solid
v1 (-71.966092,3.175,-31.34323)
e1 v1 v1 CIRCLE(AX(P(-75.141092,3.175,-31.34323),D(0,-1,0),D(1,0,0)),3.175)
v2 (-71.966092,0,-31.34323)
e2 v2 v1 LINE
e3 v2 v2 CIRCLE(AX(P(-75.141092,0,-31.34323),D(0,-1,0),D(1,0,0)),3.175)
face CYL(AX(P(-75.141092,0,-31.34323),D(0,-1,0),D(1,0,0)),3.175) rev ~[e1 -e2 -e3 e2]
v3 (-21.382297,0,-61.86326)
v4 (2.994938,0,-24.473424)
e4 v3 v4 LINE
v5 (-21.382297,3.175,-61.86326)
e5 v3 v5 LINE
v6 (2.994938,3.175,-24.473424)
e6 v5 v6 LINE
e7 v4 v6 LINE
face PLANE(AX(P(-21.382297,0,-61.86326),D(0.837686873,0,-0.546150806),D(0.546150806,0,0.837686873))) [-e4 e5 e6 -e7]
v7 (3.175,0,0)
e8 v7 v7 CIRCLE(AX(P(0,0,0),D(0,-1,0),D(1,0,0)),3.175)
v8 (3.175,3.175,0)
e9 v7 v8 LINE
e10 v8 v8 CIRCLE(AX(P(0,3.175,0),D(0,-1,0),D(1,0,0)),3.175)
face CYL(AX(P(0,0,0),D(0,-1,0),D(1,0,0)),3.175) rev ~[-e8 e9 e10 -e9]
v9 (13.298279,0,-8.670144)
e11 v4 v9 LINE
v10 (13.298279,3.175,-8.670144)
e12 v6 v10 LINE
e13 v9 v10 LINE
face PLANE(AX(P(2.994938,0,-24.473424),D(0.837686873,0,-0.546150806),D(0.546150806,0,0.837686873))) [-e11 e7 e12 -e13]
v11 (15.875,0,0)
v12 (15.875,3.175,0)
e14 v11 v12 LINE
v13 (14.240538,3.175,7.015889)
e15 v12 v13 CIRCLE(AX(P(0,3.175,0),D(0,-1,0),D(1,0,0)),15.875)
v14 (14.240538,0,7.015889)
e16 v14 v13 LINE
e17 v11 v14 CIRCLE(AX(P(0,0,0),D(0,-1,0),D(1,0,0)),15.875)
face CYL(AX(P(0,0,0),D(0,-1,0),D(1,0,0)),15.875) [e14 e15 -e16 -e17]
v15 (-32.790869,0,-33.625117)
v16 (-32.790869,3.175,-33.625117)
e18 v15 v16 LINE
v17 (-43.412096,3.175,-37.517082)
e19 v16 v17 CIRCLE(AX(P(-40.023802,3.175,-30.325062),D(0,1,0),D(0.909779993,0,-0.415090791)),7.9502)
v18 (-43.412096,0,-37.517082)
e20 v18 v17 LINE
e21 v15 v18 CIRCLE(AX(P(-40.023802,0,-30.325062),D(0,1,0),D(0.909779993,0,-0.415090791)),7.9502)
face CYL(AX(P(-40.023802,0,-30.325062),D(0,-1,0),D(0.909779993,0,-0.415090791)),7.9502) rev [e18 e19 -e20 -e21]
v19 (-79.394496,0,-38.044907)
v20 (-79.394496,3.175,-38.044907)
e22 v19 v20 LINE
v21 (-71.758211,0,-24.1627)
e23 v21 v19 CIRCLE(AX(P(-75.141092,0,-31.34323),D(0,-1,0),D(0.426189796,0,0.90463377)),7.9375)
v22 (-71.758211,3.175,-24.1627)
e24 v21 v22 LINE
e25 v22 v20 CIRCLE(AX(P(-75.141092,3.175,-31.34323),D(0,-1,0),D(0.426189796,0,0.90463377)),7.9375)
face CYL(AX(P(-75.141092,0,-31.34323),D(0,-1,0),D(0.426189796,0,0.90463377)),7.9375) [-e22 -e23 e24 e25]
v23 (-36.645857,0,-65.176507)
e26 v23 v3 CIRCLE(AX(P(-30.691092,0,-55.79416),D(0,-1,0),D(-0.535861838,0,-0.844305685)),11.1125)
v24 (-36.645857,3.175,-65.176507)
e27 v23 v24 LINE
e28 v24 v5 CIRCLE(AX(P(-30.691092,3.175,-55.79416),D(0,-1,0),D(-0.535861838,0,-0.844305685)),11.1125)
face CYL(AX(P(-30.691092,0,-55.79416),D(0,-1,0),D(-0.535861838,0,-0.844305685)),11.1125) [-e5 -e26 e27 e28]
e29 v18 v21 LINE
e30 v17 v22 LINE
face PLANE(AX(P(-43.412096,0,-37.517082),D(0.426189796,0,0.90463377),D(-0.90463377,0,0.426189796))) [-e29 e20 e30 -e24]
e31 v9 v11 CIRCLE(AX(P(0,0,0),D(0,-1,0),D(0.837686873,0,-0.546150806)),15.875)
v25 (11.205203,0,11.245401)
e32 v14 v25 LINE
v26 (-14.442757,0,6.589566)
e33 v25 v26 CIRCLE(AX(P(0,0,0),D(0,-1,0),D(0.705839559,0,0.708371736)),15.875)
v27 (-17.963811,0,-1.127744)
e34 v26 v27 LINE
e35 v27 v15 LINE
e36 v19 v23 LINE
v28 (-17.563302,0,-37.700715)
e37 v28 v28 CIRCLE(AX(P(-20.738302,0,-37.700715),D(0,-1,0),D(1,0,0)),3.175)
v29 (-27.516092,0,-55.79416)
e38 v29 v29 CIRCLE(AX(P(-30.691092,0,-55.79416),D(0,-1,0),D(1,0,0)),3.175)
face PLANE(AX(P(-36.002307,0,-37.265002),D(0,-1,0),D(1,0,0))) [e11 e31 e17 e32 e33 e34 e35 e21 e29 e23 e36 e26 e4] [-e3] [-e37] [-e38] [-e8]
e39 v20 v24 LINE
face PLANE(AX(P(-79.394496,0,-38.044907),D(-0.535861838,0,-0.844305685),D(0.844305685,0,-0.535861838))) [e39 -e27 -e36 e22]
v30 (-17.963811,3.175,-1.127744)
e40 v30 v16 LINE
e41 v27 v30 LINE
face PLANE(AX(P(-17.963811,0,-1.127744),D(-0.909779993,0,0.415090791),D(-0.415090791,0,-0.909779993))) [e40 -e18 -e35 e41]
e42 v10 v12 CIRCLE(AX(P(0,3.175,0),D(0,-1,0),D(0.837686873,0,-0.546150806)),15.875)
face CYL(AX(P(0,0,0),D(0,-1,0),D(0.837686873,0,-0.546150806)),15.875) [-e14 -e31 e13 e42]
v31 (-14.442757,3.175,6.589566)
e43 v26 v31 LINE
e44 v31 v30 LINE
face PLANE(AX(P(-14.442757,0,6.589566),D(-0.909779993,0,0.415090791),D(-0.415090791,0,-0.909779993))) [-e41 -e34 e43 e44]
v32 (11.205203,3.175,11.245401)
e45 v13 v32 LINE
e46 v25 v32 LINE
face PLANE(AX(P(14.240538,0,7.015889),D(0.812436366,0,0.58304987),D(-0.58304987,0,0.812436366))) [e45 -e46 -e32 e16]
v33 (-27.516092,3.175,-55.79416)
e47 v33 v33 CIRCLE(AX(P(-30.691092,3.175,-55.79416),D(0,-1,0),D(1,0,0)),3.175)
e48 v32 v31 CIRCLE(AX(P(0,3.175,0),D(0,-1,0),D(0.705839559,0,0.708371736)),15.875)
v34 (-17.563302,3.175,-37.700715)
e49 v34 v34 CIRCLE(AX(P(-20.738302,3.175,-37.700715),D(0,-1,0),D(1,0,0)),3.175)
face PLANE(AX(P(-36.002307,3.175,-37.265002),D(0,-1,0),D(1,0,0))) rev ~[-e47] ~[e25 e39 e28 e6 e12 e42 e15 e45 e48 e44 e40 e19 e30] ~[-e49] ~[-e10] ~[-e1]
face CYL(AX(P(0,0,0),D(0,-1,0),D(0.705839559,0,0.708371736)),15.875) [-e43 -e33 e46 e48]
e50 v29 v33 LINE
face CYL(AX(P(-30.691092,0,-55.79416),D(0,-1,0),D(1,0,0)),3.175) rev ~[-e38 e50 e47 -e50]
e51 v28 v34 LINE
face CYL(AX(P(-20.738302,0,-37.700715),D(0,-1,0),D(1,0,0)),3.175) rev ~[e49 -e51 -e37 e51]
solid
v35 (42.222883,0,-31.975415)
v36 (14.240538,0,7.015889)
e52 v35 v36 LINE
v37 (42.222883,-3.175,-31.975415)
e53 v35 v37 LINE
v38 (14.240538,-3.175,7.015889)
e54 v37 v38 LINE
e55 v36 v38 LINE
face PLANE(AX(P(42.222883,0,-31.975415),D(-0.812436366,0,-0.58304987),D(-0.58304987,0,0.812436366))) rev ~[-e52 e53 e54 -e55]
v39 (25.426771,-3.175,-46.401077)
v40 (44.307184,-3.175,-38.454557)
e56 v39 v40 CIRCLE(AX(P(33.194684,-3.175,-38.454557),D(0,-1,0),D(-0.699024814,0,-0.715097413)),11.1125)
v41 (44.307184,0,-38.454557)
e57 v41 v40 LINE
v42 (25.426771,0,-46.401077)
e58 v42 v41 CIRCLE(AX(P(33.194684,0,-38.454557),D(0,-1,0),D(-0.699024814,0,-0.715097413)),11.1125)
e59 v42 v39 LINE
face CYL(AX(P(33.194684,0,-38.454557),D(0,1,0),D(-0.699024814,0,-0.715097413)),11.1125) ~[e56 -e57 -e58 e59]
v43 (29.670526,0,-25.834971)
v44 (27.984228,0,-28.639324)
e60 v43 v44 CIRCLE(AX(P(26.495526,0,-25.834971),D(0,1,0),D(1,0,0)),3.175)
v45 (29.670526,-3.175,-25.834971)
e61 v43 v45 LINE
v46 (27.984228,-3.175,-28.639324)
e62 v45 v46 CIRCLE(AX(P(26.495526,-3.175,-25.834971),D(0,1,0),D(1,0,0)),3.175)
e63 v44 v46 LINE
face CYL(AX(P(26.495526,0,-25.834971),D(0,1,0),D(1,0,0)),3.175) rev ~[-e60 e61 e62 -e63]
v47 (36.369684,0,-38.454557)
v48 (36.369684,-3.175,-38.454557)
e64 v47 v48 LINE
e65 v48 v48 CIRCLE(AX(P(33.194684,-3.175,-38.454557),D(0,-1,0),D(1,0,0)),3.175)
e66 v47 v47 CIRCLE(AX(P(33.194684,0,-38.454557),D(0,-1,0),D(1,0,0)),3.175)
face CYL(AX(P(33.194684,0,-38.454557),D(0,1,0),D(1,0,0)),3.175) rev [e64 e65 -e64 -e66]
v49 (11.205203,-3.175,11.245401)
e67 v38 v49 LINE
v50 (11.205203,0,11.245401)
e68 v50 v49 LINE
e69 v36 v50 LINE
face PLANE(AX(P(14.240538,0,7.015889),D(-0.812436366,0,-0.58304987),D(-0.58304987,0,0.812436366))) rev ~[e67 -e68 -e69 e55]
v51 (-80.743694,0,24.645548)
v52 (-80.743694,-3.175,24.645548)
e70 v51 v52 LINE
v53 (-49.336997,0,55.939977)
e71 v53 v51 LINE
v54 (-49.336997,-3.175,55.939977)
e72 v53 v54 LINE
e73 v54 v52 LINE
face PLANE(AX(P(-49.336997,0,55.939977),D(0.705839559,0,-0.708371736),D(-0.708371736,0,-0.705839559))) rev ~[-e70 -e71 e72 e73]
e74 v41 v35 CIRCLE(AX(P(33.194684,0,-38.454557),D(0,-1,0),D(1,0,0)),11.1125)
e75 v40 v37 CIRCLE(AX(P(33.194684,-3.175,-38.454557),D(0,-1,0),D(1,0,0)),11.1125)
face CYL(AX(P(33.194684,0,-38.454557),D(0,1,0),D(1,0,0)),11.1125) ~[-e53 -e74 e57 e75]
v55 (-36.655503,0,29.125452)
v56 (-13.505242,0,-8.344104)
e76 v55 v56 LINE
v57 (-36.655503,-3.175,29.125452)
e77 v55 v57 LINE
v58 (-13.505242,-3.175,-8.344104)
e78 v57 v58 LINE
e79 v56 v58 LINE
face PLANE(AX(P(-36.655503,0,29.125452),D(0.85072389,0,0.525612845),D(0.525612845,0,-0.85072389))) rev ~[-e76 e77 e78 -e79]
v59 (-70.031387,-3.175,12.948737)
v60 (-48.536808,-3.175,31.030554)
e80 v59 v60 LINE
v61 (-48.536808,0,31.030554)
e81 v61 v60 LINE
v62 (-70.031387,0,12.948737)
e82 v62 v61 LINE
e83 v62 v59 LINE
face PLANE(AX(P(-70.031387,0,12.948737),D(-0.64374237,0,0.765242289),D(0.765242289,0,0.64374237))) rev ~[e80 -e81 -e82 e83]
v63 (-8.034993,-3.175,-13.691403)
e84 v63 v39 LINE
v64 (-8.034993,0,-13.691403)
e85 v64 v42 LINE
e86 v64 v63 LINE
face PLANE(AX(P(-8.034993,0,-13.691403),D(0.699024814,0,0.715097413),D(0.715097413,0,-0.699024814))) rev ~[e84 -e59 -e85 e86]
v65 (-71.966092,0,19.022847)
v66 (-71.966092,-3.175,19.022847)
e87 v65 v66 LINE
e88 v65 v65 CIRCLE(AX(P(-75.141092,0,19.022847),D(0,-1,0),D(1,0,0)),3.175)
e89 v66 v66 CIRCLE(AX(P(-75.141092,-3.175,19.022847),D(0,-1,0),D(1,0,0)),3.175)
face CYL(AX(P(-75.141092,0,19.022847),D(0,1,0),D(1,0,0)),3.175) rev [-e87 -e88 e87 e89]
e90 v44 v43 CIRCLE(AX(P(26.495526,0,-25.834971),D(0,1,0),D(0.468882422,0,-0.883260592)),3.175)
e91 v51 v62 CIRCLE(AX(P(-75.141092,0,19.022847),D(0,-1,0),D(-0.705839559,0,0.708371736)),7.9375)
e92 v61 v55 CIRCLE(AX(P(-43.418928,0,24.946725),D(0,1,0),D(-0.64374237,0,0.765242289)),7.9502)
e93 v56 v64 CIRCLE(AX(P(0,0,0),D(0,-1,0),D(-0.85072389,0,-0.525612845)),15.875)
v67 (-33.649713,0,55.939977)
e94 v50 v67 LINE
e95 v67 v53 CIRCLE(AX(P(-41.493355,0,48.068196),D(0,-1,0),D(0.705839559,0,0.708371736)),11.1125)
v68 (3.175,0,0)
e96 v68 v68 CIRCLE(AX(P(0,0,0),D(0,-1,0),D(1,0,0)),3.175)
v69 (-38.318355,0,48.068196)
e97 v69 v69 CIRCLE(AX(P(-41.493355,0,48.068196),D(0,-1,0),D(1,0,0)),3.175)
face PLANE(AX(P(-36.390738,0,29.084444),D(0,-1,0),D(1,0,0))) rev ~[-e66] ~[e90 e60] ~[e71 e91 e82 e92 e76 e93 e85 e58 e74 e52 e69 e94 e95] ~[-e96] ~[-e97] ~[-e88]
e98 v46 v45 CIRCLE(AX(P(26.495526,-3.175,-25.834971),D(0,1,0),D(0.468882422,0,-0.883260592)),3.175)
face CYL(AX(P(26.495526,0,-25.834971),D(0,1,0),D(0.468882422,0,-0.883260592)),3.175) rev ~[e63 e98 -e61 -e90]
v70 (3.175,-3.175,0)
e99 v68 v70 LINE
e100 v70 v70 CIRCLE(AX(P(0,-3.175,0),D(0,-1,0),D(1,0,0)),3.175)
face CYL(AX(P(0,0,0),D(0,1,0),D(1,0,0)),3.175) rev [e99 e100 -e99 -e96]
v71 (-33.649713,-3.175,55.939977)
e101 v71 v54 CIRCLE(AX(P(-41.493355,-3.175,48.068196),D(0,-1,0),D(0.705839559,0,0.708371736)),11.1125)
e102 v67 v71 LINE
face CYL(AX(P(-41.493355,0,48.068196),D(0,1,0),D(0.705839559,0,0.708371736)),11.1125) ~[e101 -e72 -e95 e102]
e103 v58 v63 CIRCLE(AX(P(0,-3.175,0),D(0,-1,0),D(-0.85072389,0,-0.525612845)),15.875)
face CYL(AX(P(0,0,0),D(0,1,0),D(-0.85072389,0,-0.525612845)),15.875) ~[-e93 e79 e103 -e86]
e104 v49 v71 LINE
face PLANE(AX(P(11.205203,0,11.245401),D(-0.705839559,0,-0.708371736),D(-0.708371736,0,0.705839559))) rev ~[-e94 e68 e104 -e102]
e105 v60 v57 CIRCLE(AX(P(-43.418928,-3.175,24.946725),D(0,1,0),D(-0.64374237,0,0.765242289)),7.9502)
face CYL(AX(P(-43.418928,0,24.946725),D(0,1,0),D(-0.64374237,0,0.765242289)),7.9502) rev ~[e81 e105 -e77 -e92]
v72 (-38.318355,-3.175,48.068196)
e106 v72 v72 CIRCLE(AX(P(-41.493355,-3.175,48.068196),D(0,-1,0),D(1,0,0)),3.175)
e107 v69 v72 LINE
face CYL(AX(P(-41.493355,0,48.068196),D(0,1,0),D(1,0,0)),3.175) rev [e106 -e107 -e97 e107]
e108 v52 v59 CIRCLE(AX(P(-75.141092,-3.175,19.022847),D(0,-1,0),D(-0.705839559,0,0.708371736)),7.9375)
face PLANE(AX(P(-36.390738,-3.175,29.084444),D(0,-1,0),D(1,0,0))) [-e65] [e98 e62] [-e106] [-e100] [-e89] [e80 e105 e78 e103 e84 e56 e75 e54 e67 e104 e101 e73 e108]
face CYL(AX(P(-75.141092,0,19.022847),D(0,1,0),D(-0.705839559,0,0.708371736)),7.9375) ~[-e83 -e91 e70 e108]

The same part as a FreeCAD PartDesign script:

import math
import FreeCAD as App
import Part
import Sketcher

V = App.Vector
Q = App.Units.Quantity

doc = App.newDocument("Part")
body = doc.addObject("PartDesign::Body", "Body")

# Sketch on XZ plane
sketch1 = body.newObject("Sketcher::SketchObject", "Sketch")
sketch1.AttachmentSupport = (doc.getObject("XZ_Plane"), [""])
sketch1.MapMode = "FlatFace"
sketch1.addGeometry(Part.LineSegment(V(42.222883, -31.975415, 0), V(14.240538, 7.015889, 0)), False)
sketch1.addGeometry(Part.LineSegment(V(14.240538, 7.015889, 0), V(11.205203, 11.245401, 0)), False)
sketch1.addGeometry(Part.LineSegment(V(11.205203, 11.245401, 0), V(-33.649713, 55.939977, 0)), False)
sketch1.addGeometry(Part.ArcOfCircle(Part.Circle(V(-41.493355, 48.068196, 0), V(0, 0, 1), 11.1125), math.radians(45.102589), math.radians(134.897411)), False)
sketch1.addGeometry(Part.LineSegment(V(-49.336997, 55.939977, 0), V(-80.743694, 24.645548, 0)), False)
sketch1.addGeometry(Part.ArcOfCircle(Part.Circle(V(-75.141092, 19.022847, 0), V(0, 0, 1), 7.9375), math.radians(134.897411), math.radians(310.071448)), False)
sketch1.addGeometry(Part.LineSegment(V(-70.031387, 12.948737, 0), V(-48.536808, 31.030554, 0)), False)
sketch1.addGeometry(Part.ArcOfCircle(Part.Circle(V(-43.418928, 24.946725, 0), V(0, 0, 1), 7.9502), math.radians(31.709509), math.radians(130.071448)), False)
sketch1.addGeometry(Part.LineSegment(V(-36.655503, 29.125452, 0), V(-13.505242, -8.344104, 0)), False)
sketch1.addGeometry(Part.ArcOfCircle(Part.Circle(V(0, 0, 0), V(0, 0, 1), 15.875), math.radians(-148.290491), math.radians(-120.407143)), False)
sketch1.addGeometry(Part.LineSegment(V(-8.034993, -13.691403, 0), V(25.426771, -46.401077, 0)), False)
sketch1.addGeometry(Part.ArcOfCircle(Part.Circle(V(33.194684, -38.454557, 0), V(0, 0, 1), 11.1125), math.radians(-134.348817), math.radians(0)), False)
sketch1.addGeometry(Part.ArcOfCircle(Part.Circle(V(33.194684, -38.454557, 0), V(0, 0, 1), 11.1125), math.radians(0), math.radians(35.665341)), False)
sketch1.addGeometry(Part.Circle(V(33.194684, -38.454557, 0), V(0, 0, 1), 3.175), False)
sketch1.addGeometry(Part.ArcOfCircle(Part.Circle(V(26.495526, -25.834971, 0), V(0, 0, 1), 3.175), math.radians(-62.038223), math.radians(0)), False)
sketch1.addGeometry(Part.ArcOfCircle(Part.Circle(V(26.495526, -25.834971, 0), V(0, 0, 1), 3.175), math.radians(0), math.radians(297.961777)), False)
sketch1.addGeometry(Part.Circle(V(0, 0, 0), V(0, 0, 1), 3.175), False)
sketch1.addGeometry(Part.Circle(V(-75.141092, 19.022847, 0), V(0, 0, 1), 3.175), False)
sketch1.addGeometry(Part.Circle(V(-41.493355, 48.068196, 0), V(0, 0, 1), 3.175), False)
sketch1.addConstraint(Sketcher.Constraint("Coincident", 0, 2, 1, 1))
sketch1.addConstraint(Sketcher.Constraint("Coincident", 1, 2, 2, 1))
sketch1.addConstraint(Sketcher.Constraint("Tangent", 2, 2, 3, 1))
sketch1.addConstraint(Sketcher.Constraint("Tangent", 3, 2, 4, 1))
sketch1.addConstraint(Sketcher.Constraint("Tangent", 4, 2, 5, 1))
sketch1.addConstraint(Sketcher.Constraint("Tangent", 5, 2, 6, 1))
sketch1.addConstraint(Sketcher.Constraint("Tangent", 6, 2, 7, 2))
sketch1.addConstraint(Sketcher.Constraint("Tangent", 7, 1, 8, 1))
sketch1.addConstraint(Sketcher.Constraint("Tangent", 8, 2, 9, 1))
sketch1.addConstraint(Sketcher.Constraint("Coincident", 9, 2, 10, 1))
sketch1.addConstraint(Sketcher.Constraint("Tangent", 10, 2, 11, 1))
sketch1.addConstraint(Sketcher.Constraint("Tangent", 11, 2, 12, 1))
sketch1.addConstraint(Sketcher.Constraint("Tangent", 12, 2, 0, 1))
sketch1.addConstraint(Sketcher.Constraint("Tangent", 14, 1, 15, 2))
sketch1.addConstraint(Sketcher.Constraint("Coincident", 15, 1, 14, 2))
sketch1.addConstraint(Sketcher.Constraint("Coincident", 9, 3, -1, 1))
sketch1.addConstraint(Sketcher.Constraint("Coincident", 16, 3, -1, 1))
sketch1.addConstraint(Sketcher.Constraint("Coincident", 13, 3, 11, 3))
sketch1.addConstraint(Sketcher.Constraint("Coincident", 17, 3, 5, 3))
sketch1.addConstraint(Sketcher.Constraint("Coincident", 18, 3, 3, 3))
sketch1.addConstraint(Sketcher.Constraint("Equal", 3, 11))
sketch1.addConstraint(Sketcher.Constraint("Equal", 11, 12))
sketch1.addConstraint(Sketcher.Constraint("Equal", 13, 14))
sketch1.addConstraint(Sketcher.Constraint("Equal", 15, 16))
sketch1.addConstraint(Sketcher.Constraint("Equal", 16, 17))
sketch1.addConstraint(Sketcher.Constraint("Equal", 17, 18))
sketch1.addConstraint(Sketcher.Constraint("Parallel", 0, 1))
sketch1.addConstraint(Sketcher.Constraint("Horizontal", 2, 2, 3, 2))
sketch1.addConstraint(Sketcher.Constraint("Horizontal", 13, 3, 11, 2))
sketch1.addConstraint(Sketcher.Constraint("Horizontal", 14, 3, 15, 1))
sketch1.addConstraint(Sketcher.Constraint("Diameter", 13, Q("0.25 in")))
sketch1.addConstraint(Sketcher.Constraint("Radius", 3, Q("0.4375 in")))
sketch1.addConstraint(Sketcher.Constraint("Radius", 5, Q("0.3125 in")))
sketch1.addConstraint(Sketcher.Constraint("Radius", 7, Q("0.313 in")))
sketch1.addConstraint(Sketcher.Constraint("Radius", 9, Q("0.625 in")))
sketch1.addConstraint(Sketcher.Constraint("DistanceY", -1, 1, 1, 2, Q("11.245401 mm")))
sketch1.addConstraint(Sketcher.Constraint("DistanceX", 4, 2, 17, 3, Q("5.602602 mm")))
sketch1.addConstraint(Sketcher.Constraint("DistanceY", 9, 2, 8, 2, Q("5.347299 mm")))
sketch1.addConstraint(Sketcher.Constraint("DistanceX", 12, 2, 11, 2, Q("2.084301 mm")))
sketch1.addConstraint(Sketcher.Constraint("DistanceX", 14, 3, 14, 1, Q("1.488702 mm")))
sketch1.addConstraint(Sketcher.Constraint("Distance", 1, Q("5.205962 mm")))
sketch1.addConstraint(Sketcher.Constraint("Distance", 8, Q("44.044321 mm")))
sketch1.addConstraint(Sketcher.Constraint("DistanceY", 14, 3, -1, 1, Q("25.834971 mm")))
sketch1.addConstraint(Sketcher.Constraint("DistanceX", -1, 1, 0, 2, Q("14.240538 mm")))
sketch1.addConstraint(Sketcher.Constraint("DistanceY", -1, 1, 4, 2, Q("24.645548 mm")))
sketch1.addConstraint(Sketcher.Constraint("DistanceX", 6, 2, -1, 1, Q("48.536808 mm")))
sketch1.addConstraint(Sketcher.Constraint("DistanceX", 8, 2, -1, 1, Q("13.505242 mm")))
sketch1.addConstraint(Sketcher.Constraint("DistanceX", -1, 1, 10, 2, Q("25.426771 mm")))
sketch1.addConstraint(Sketcher.Constraint("DistanceX", 14, 3, 11, 3, Q("6.699158 mm")))
pad1 = body.newObject("PartDesign::Pad", "Pad")
pad1.Profile = sketch1
pad1.Length = Q("0.125 in")
body2 = doc.addObject("PartDesign::Body", "Body001")

# Sketch on XZ plane
sketch2 = body2.newObject("Sketcher::SketchObject", "Sketch001")
sketch2.AttachmentSupport = (doc.getObject("XZ_Plane001"), [""])
sketch2.MapMode = "FlatFace"
sketch2.addGeometry(Part.LineSegment(V(14.240538, 7.015889, 0), V(11.205203, 11.245401, 0)), False)
sketch2.addGeometry(Part.ArcOfCircle(Part.Circle(V(0, 0, 0), V(0, 0, 1), 15.875), math.radians(45.102589), math.radians(155.474966)), False)
sketch2.addGeometry(Part.LineSegment(V(-14.442757, 6.589566, 0), V(-17.963811, -1.127744, 0)), False)
sketch2.addGeometry(Part.LineSegment(V(-17.963811, -1.127744, 0), V(-32.790869, -33.625117, 0)), False)
sketch2.addGeometry(Part.ArcOfCircle(Part.Circle(V(-40.023802, -30.325062, 0), V(0, 0, 1), 7.9502), math.radians(-115.225997), math.radians(-24.525034)), False)
sketch2.addGeometry(Part.LineSegment(V(-43.412096, -37.517082, 0), V(-71.758211, -24.1627, 0)), False)
sketch2.addGeometry(Part.ArcOfCircle(Part.Circle(V(-75.141092, -31.34323, 0), V(0, 0, 1), 7.9375), math.radians(64.774003), math.radians(237.597622)), False)
sketch2.addGeometry(Part.LineSegment(V(-79.394496, -38.044907, 0), V(-36.645857, -65.176507, 0)), False)
sketch2.addGeometry(Part.ArcOfCircle(Part.Circle(V(-30.691092, -55.79416, 0), V(0, 0, 1), 11.1125), math.radians(-122.402378), math.radians(-33.103341)), False)
sketch2.addGeometry(Part.LineSegment(V(-21.382297, -61.86326, 0), V(2.994938, -24.473424, 0)), False)
sketch2.addGeometry(Part.LineSegment(V(2.994938, -24.473424, 0), V(13.298279, -8.670144, 0)), False)
sketch2.addGeometry(Part.ArcOfCircle(Part.Circle(V(0, 0, 0), V(0, 0, 1), 15.875), math.radians(-33.103341), math.radians(0)), False)
sketch2.addGeometry(Part.ArcOfCircle(Part.Circle(V(0, 0, 0), V(0, 0, 1), 15.875), math.radians(0), math.radians(26.228094)), False)
sketch2.addGeometry(Part.Circle(V(-75.141092, -31.34323, 0), V(0, 0, 1), 3.175), False)
sketch2.addGeometry(Part.Circle(V(-30.691092, -55.79416, 0), V(0, 0, 1), 3.175), False)
sketch2.addGeometry(Part.Circle(V(-20.738302, -37.700715, 0), V(0, 0, 1), 3.175), False)
sketch2.addGeometry(Part.Circle(V(0, 0, 0), V(0, 0, 1), 3.175), False)
sketch2.addConstraint(Sketcher.Constraint("Coincident", 0, 2, 1, 1))
sketch2.addConstraint(Sketcher.Constraint("Tangent", 1, 2, 2, 1))
sketch2.addConstraint(Sketcher.Constraint("Coincident", 2, 2, 3, 1))
sketch2.addConstraint(Sketcher.Constraint("Tangent", 3, 2, 4, 2))
sketch2.addConstraint(Sketcher.Constraint("Tangent", 4, 1, 5, 1))
sketch2.addConstraint(Sketcher.Constraint("Tangent", 5, 2, 6, 1))
sketch2.addConstraint(Sketcher.Constraint("Tangent", 6, 2, 7, 1))
sketch2.addConstraint(Sketcher.Constraint("Tangent", 7, 2, 8, 1))
sketch2.addConstraint(Sketcher.Constraint("Tangent", 8, 2, 9, 1))
sketch2.addConstraint(Sketcher.Constraint("Coincident", 9, 2, 10, 1))
sketch2.addConstraint(Sketcher.Constraint("Tangent", 10, 2, 11, 1))
sketch2.addConstraint(Sketcher.Constraint("Tangent", 11, 2, 12, 1))
sketch2.addConstraint(Sketcher.Constraint("Coincident", 12, 2, 0, 1))
sketch2.addConstraint(Sketcher.Constraint("Coincident", 1, 3, -1, 1))
sketch2.addConstraint(Sketcher.Constraint("Coincident", 11, 3, -1, 1))
sketch2.addConstraint(Sketcher.Constraint("Coincident", 16, 3, -1, 1))
sketch2.addConstraint(Sketcher.Constraint("Coincident", 13, 3, 6, 3))
sketch2.addConstraint(Sketcher.Constraint("Coincident", 14, 3, 8, 3))
sketch2.addConstraint(Sketcher.Constraint("Equal", 1, 11))
sketch2.addConstraint(Sketcher.Constraint("Equal", 11, 12))
sketch2.addConstraint(Sketcher.Constraint("Equal", 13, 14))
sketch2.addConstraint(Sketcher.Constraint("Equal", 14, 15))
sketch2.addConstraint(Sketcher.Constraint("Equal", 15, 16))
sketch2.addConstraint(Sketcher.Constraint("PointOnObject", 11, 2, -1))
sketch2.addConstraint(Sketcher.Constraint("Parallel", 2, 3))
sketch2.addConstraint(Sketcher.Constraint("Parallel", 9, 10))
sketch2.addConstraint(Sketcher.Constraint("Diameter", 13, Q("0.25 in")))
sketch2.addConstraint(Sketcher.Constraint("Radius", 1, Q("0.625 in")))
sketch2.addConstraint(Sketcher.Constraint("Radius", 4, Q("0.313 in")))
sketch2.addConstraint(Sketcher.Constraint("Radius", 6, Q("0.3125 in")))
sketch2.addConstraint(Sketcher.Constraint("Radius", 8, Q("0.4375 in")))
sketch2.addConstraint(Sketcher.Constraint("DistanceX", 6, 3, 8, 3, Q("1.75 in")))
sketch2.addConstraint(Sketcher.Constraint("DistanceY", 4, 3, -1, 1, Q("1.1939001 in")))
sketch2.addConstraint(Sketcher.Constraint("DistanceX", 4, 3, -1, 1, Q("40.023802 mm")))
sketch2.addConstraint(Sketcher.Constraint("DistanceY", -1, 1, 0, 2, Q("11.245401 mm")))
sketch2.addConstraint(Sketcher.Constraint("DistanceY", 5, 2, -1, 1, Q("24.1627 mm")))
sketch2.addConstraint(Sketcher.Constraint("DistanceX", 4, 3, 15, 3, Q("19.2855 mm")))
sketch2.addConstraint(Sketcher.Constraint("DistanceY", 15, 3, 3, 2, Q("4.075598 mm")))
sketch2.addConstraint(Sketcher.Constraint("DistanceX", 6, 2, 4, 1, Q("35.9824 mm")))
sketch2.addConstraint(Sketcher.Constraint("DistanceY", 8, 2, 8, 3, Q("6.069101 mm")))
sketch2.addConstraint(Sketcher.Constraint("Distance", 0, Q("5.205962 mm")))
sketch2.addConstraint(Sketcher.Constraint("Distance", 2, Q("8.482611 mm")))
sketch2.addConstraint(Sketcher.Constraint("Distance", 9, Q("44.634622 mm")))
pad2 = body2.newObject("PartDesign::Pad", "Pad001")
pad2.Profile = sketch2
pad2.Length = Q("0.125 in")
pad2.Reversed = True

doc.recompute()
